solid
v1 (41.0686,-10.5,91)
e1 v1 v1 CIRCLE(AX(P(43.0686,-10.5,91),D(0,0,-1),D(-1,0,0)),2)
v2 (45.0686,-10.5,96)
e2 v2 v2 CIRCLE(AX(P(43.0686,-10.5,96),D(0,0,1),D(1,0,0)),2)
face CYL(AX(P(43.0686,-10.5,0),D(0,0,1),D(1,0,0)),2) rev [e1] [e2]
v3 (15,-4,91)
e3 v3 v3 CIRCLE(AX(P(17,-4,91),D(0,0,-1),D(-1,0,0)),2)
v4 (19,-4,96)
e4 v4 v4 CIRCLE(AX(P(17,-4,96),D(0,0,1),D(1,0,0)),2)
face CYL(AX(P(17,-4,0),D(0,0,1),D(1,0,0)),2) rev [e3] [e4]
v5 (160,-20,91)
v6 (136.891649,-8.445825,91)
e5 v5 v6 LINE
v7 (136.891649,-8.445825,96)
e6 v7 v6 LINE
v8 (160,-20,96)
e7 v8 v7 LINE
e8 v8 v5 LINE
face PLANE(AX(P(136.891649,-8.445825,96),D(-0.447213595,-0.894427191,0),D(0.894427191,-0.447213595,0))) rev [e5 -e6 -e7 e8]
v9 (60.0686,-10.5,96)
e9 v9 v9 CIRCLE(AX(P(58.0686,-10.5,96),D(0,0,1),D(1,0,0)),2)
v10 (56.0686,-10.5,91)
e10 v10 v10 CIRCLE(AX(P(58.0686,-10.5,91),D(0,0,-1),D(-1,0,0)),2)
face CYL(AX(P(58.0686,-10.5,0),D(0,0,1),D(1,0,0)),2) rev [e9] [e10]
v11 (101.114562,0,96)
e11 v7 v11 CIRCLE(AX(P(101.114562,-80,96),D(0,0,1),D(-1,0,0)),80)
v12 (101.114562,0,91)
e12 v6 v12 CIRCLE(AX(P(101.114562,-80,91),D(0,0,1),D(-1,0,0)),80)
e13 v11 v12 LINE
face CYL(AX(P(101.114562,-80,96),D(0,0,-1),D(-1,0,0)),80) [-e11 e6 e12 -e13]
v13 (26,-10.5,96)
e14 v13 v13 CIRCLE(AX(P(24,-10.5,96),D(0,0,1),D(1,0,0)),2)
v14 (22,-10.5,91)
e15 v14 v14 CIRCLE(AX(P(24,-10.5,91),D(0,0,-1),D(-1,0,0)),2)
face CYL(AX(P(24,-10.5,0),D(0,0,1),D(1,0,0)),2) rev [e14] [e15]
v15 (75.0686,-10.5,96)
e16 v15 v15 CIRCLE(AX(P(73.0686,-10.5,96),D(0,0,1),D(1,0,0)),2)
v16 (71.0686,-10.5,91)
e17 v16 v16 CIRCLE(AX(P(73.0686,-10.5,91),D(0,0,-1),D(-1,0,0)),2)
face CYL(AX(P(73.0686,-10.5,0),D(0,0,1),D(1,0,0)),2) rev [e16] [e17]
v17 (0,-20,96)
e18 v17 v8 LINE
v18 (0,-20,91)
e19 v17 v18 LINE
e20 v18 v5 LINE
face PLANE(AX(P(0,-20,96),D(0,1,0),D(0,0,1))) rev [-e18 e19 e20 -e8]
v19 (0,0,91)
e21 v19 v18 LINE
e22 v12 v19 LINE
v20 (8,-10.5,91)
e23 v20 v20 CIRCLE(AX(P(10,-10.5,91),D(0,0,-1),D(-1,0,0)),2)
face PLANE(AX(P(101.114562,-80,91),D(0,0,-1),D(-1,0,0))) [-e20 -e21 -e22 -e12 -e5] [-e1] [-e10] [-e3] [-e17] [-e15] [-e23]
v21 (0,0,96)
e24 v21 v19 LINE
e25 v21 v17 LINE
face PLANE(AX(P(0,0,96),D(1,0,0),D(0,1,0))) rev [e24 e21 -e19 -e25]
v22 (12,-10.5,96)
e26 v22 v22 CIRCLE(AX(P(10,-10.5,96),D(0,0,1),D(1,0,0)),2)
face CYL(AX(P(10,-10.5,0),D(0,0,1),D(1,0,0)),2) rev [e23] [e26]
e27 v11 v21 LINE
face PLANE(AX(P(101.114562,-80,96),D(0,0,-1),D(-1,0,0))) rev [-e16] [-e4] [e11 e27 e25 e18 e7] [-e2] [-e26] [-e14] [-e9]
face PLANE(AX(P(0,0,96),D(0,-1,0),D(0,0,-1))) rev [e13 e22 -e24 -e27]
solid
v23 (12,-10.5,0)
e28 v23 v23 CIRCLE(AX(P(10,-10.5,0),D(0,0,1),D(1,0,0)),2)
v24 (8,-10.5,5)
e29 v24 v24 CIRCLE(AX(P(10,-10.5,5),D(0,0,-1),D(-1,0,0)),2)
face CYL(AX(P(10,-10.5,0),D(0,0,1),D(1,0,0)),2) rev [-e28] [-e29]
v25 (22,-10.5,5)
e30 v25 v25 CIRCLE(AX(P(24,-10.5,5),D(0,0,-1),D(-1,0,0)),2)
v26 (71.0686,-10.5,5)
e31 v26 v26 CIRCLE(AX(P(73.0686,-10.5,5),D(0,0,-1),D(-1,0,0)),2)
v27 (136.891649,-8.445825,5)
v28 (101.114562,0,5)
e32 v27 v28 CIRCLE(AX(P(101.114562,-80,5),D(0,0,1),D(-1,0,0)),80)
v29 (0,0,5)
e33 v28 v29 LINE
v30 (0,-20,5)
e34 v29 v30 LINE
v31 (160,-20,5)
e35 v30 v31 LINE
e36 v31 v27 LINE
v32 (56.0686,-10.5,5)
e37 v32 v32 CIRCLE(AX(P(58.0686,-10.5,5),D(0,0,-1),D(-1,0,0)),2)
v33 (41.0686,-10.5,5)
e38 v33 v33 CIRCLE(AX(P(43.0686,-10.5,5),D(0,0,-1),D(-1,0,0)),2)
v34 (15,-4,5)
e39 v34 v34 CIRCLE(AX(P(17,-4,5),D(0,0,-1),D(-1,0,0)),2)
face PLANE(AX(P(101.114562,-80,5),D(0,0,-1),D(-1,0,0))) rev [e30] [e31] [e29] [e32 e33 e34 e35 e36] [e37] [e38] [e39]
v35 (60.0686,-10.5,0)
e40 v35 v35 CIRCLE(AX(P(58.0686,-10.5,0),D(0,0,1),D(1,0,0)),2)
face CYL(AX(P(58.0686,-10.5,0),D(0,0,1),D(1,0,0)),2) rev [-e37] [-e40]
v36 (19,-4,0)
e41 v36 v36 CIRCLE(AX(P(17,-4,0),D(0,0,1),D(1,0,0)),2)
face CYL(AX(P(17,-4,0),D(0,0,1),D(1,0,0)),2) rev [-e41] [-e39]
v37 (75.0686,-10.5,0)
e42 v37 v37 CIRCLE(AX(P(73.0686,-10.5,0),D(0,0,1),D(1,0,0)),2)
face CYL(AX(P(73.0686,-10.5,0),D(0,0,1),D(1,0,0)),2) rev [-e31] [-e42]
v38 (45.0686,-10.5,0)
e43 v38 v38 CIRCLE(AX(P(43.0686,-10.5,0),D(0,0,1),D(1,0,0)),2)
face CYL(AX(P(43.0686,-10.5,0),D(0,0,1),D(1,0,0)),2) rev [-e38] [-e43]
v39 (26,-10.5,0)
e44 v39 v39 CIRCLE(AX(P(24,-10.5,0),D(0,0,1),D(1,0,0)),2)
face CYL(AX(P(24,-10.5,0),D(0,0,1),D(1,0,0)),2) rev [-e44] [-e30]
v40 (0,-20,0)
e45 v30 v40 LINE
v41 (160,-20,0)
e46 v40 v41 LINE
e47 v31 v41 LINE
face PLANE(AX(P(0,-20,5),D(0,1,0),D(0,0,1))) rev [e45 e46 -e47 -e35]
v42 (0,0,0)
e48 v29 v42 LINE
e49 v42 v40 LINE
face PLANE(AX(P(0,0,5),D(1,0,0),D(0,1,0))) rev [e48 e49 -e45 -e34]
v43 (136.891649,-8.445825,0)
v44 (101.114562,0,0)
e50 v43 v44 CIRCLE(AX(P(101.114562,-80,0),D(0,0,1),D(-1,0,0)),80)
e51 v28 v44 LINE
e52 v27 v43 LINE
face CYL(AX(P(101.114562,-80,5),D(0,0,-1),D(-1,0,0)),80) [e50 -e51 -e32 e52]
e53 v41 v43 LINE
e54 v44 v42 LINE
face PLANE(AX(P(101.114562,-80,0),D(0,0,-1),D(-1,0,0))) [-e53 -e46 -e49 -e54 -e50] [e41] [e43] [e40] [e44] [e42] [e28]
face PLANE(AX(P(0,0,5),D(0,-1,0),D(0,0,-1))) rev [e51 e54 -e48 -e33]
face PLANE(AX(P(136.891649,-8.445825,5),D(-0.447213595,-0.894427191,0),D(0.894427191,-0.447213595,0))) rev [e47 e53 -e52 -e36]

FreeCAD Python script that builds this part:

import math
import FreeCAD as App
import Part
import Sketcher

V = App.Vector
Q = App.Units.Quantity

doc = App.newDocument("Part")
body = doc.addObject("PartDesign::Body", "Body")

# Sketch on XY plane
sketch1 = body.newObject("Sketcher::SketchObject", "Sketch")
sketch1.AttachmentSupport = (doc.getObject("XY_Plane"), [""])
sketch1.MapMode = "FlatFace"
sketch1.AttachmentOffset = App.Placement(V(0, 0, 91), App.Rotation())
sketch1.addGeometry([
    Part.LineSegment(V(0, 0, 0), V(0, -20, 0)),  # 0
    Part.LineSegment(V(0, -20, 0), V(160, -20, 0)),  # 1
    Part.LineSegment(V(160, -20, 0), V(137, -8, 0)),  # 2
    Part.ArcOfCircle(Part.Circle(V(101, -80, 0), V(0, 0, 1), 80), math.radians(63), math.radians(90)),  # 3
    Part.LineSegment(V(101, 0, 0), V(0, 0, 0)),  # 4
], False)
sketch1.addConstraint([
    Sketcher.Constraint("Coincident", 0, 2, 1, 1),
    Sketcher.Constraint("Coincident", 1, 2, 2, 1),
    Sketcher.Constraint("Tangent", 2, 2, 3, 1),
    Sketcher.Constraint("Tangent", 3, 2, 4, 1),
    Sketcher.Constraint("Coincident", 4, 2, 0, 1),
    Sketcher.Constraint("Vertical", 0),
    Sketcher.Constraint("Horizontal", 1),
    Sketcher.Constraint("Horizontal", 4),
    Sketcher.Constraint("Coincident", 4, 2, -1, 1),
    Sketcher.Constraint("Radius", 3, Q("80 mm")),
    Sketcher.Constraint("DistanceX", 1, 1, 1, 2, Q("160 mm")),
    Sketcher.Constraint("DistanceY", 0, 2, 0, 1, Q("20 mm")),
    Sketcher.Constraint("DistanceX", 4, 2, 4, 1, Q("101.114562 mm")),
])
pad1 = body.newObject("PartDesign::Pad", "Pad")
pad1.Profile = sketch1
pad1.Length = 5
body2 = doc.addObject("PartDesign::Body", "Body001")

# Sketch on XY plane
sketch2 = body2.newObject("Sketcher::SketchObject", "Sketch001")
sketch2.AttachmentSupport = (doc.getObject("XY_Plane001"), [""])
sketch2.MapMode = "FlatFace"
sketch2.addGeometry([
    Part.LineSegment(V(0, 0, 0), V(0, -20, 0)),  # 0
    Part.LineSegment(V(0, -20, 0), V(160, -20, 0)),  # 1
    Part.LineSegment(V(160, -20, 0), V(137, -8, 0)),  # 2
    Part.ArcOfCircle(Part.Circle(V(101, -80, 0), V(0, 0, 1), 80), math.radians(63), math.radians(90)),  # 3
    Part.LineSegment(V(101, 0, 0), V(0, 0, 0)),  # 4
], False)
sketch2.addConstraint([
    Sketcher.Constraint("Coincident", 0, 2, 1, 1),
    Sketcher.Constraint("Coincident", 1, 2, 2, 1),
    Sketcher.Constraint("Tangent", 2, 2, 3, 1),
    Sketcher.Constraint("Tangent", 3, 2, 4, 1),
    Sketcher.Constraint("Coincident", 4, 2, 0, 1),
    Sketcher.Constraint("Vertical", 0),
    Sketcher.Constraint("Horizontal", 1),
    Sketcher.Constraint("Horizontal", 4),
    Sketcher.Constraint("Coincident", 4, 2, -1, 1),
    Sketcher.Constraint("Radius", 3, Q("80 mm")),
    Sketcher.Constraint("DistanceX", 1, 1, 1, 2, Q("160 mm")),
    Sketcher.Constraint("DistanceY", 0, 2, 0, 1, Q("20 mm")),
    Sketcher.Constraint("DistanceX", 4, 2, 4, 1, Q("101.114562 mm")),
])
pad2 = body2.newObject("PartDesign::Pad", "Pad001")
pad2.Profile = sketch2
pad2.Length = 5
body3 = doc.addObject("PartDesign::Body", "Body002")
body3.AllowCompound = True

# Sketch on XY plane
sketch3 = body3.newObject("Sketcher::SketchObject", "Sketch002")
sketch3.AttachmentSupport = (doc.getObject("XY_Plane002"), [""])
sketch3.MapMode = "FlatFace"
sketch3.AttachmentOffset = App.Placement(V(0, 0, 5), App.Rotation())
sketch3.addGeometry([
    Part.Circle(V(10, -10.5, 0), V(0, 0, 1), 2),  # 0
    Part.Circle(V(17, -4, 0), V(0, 0, 1), 2),  # 1
    Part.Circle(V(24, -10.5, 0), V(0, 0, 1), 2),  # 2
    Part.Circle(V(43.1, -10.5, 0), V(0, 0, 1), 2),  # 3
    Part.Circle(V(58.1, -10.5, 0), V(0, 0, 1), 2),  # 4
    Part.Circle(V(73.1, -10.5, 0), V(0, 0, 1), 2),  # 5
], False)
sketch3.addConstraint([
    Sketcher.Constraint("Equal", 0, 1),
    Sketcher.Constraint("Equal", 1, 2),
    Sketcher.Constraint("Equal", 2, 3),
    Sketcher.Constraint("Equal", 3, 4),
    Sketcher.Constraint("Equal", 4, 5),
    Sketcher.Constraint("Horizontal", 0, 3, 2, 3),
    Sketcher.Constraint("Horizontal", 2, 3, 3, 3),
    Sketcher.Constraint("Horizontal", 3, 3, 4, 3),
    Sketcher.Constraint("Horizontal", 4, 3, 5, 3),
    Sketcher.Constraint("Diameter", 0, Q("4 mm")),
    Sketcher.Constraint("DistanceX", -1, 1, 0, 3, Q("10 mm")),
    Sketcher.Constraint("DistanceX", -1, 1, 1, 3, Q("17 mm")),
    Sketcher.Constraint("DistanceY", 1, 3, -1, 1, Q("4 mm")),
    Sketcher.Constraint("DistanceX", -1, 1, 2, 3, Q("24 mm")),
    Sketcher.Constraint("DistanceX", 3, 3, 4, 3, Q("15 mm")),
    Sketcher.Constraint("DistanceX", 4, 3, 5, 3, Q("15 mm")),
    Sketcher.Constraint("DistanceY", 0, 3, -1, 1, Q("10.5 mm")),
    Sketcher.Constraint("DistanceX", -1, 1, 3, 3, Q("43.0686 mm")),
])
pad3 = body3.newObject("PartDesign::Pad", "Pad002")
pad3.Profile = sketch3
pad3.Type = "TwoLengths"
pad3.Length = 186.151289
pad3.Length2 = 186.151289
doc.recompute()

body4 = doc.addObject("PartDesign::Body", "Body003")
body4.BaseFeature = body3
boolean = body.newObject("PartDesign::Boolean", "Boolean")
boolean.Type = "Cut"
boolean.addObjects([body4])
doc.recompute()

boolean2 = body2.newObject("PartDesign::Boolean", "Boolean001")
boolean2.Type = "Cut"
boolean2.addObjects([body3])

doc.recompute()
